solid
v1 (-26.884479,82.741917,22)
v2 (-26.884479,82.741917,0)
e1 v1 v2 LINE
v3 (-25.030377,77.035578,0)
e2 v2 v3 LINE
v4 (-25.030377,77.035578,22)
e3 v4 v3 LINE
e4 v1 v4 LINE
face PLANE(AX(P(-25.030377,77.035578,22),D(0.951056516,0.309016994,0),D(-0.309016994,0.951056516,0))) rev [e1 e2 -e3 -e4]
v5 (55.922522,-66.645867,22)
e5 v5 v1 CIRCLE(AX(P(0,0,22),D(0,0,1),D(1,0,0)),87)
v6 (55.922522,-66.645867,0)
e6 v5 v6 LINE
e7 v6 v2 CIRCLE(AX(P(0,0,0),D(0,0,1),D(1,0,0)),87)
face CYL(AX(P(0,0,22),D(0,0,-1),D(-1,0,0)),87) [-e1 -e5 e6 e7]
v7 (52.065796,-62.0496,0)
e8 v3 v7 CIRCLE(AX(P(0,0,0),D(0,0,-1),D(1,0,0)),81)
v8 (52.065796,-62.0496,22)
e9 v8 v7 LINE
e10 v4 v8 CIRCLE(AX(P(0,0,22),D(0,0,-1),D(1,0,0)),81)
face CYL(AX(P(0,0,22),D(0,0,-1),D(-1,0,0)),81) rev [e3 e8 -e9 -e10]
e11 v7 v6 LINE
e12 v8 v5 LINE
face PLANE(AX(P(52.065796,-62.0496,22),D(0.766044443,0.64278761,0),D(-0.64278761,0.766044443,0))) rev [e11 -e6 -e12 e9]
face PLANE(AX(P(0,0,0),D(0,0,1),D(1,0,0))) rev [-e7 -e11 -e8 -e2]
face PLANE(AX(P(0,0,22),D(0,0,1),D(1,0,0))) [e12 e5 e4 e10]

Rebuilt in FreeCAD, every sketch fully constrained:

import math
import FreeCAD as App
import Part
import Sketcher

V = App.Vector
Q = App.Units.Quantity

doc = App.newDocument("Part")
body = doc.addObject("PartDesign::Body", "Body")

sketch1 = body.newObject("Sketcher::SketchObject", "Sketch")
sketch1.AttachmentSupport = (doc.getObject("XY_Plane"), [""])
sketch1.MapMode = "FlatFace"
sketch1.addGeometry([
    Part.LineSegment(V(-27, 83, 0), V(-25, 77, 0)),
    Part.ArcOfCircle(Part.Circle(V(0, 0, 0), V(0, 0, 1), 81), math.radians(-50), math.radians(108)),
    Part.LineSegment(V(52, -62, 0), V(56, -67, 0)),
    Part.ArcOfCircle(Part.Circle(V(0, 0, 0), V(0, 0, 1), 87), math.radians(-50), math.radians(108)),
], False)
sketch1.addConstraint([
    Sketcher.Constraint("Coincident", 0, 2, 1, 2),
    Sketcher.Constraint("Coincident", 1, 1, 2, 1),
    Sketcher.Constraint("Coincident", 2, 2, 3, 1),
    Sketcher.Constraint("Coincident", 3, 2, 0, 1),
    Sketcher.Constraint("Coincident", 1, 3, -1, 1),
    Sketcher.Constraint("Coincident", 3, 3, -1, 1),
    Sketcher.Constraint("Radius", 1, 81.0),
    Sketcher.Constraint("Radius", 3, 87.0),
    Sketcher.Constraint("Angle", 0, Q("-72 deg")),
    Sketcher.Constraint("Angle", 2, Q("-50 deg")),
    Sketcher.Constraint("DistanceX", 3, 2, 2, 2, 82.807001),
    Sketcher.Constraint("DistanceY", 1, 1, -1, 1, 62.0496),
])
pad1 = body.newObject("PartDesign::Pad", "Pad")
pad1.Profile = sketch1
pad1.Length = 22

doc.recompute()
